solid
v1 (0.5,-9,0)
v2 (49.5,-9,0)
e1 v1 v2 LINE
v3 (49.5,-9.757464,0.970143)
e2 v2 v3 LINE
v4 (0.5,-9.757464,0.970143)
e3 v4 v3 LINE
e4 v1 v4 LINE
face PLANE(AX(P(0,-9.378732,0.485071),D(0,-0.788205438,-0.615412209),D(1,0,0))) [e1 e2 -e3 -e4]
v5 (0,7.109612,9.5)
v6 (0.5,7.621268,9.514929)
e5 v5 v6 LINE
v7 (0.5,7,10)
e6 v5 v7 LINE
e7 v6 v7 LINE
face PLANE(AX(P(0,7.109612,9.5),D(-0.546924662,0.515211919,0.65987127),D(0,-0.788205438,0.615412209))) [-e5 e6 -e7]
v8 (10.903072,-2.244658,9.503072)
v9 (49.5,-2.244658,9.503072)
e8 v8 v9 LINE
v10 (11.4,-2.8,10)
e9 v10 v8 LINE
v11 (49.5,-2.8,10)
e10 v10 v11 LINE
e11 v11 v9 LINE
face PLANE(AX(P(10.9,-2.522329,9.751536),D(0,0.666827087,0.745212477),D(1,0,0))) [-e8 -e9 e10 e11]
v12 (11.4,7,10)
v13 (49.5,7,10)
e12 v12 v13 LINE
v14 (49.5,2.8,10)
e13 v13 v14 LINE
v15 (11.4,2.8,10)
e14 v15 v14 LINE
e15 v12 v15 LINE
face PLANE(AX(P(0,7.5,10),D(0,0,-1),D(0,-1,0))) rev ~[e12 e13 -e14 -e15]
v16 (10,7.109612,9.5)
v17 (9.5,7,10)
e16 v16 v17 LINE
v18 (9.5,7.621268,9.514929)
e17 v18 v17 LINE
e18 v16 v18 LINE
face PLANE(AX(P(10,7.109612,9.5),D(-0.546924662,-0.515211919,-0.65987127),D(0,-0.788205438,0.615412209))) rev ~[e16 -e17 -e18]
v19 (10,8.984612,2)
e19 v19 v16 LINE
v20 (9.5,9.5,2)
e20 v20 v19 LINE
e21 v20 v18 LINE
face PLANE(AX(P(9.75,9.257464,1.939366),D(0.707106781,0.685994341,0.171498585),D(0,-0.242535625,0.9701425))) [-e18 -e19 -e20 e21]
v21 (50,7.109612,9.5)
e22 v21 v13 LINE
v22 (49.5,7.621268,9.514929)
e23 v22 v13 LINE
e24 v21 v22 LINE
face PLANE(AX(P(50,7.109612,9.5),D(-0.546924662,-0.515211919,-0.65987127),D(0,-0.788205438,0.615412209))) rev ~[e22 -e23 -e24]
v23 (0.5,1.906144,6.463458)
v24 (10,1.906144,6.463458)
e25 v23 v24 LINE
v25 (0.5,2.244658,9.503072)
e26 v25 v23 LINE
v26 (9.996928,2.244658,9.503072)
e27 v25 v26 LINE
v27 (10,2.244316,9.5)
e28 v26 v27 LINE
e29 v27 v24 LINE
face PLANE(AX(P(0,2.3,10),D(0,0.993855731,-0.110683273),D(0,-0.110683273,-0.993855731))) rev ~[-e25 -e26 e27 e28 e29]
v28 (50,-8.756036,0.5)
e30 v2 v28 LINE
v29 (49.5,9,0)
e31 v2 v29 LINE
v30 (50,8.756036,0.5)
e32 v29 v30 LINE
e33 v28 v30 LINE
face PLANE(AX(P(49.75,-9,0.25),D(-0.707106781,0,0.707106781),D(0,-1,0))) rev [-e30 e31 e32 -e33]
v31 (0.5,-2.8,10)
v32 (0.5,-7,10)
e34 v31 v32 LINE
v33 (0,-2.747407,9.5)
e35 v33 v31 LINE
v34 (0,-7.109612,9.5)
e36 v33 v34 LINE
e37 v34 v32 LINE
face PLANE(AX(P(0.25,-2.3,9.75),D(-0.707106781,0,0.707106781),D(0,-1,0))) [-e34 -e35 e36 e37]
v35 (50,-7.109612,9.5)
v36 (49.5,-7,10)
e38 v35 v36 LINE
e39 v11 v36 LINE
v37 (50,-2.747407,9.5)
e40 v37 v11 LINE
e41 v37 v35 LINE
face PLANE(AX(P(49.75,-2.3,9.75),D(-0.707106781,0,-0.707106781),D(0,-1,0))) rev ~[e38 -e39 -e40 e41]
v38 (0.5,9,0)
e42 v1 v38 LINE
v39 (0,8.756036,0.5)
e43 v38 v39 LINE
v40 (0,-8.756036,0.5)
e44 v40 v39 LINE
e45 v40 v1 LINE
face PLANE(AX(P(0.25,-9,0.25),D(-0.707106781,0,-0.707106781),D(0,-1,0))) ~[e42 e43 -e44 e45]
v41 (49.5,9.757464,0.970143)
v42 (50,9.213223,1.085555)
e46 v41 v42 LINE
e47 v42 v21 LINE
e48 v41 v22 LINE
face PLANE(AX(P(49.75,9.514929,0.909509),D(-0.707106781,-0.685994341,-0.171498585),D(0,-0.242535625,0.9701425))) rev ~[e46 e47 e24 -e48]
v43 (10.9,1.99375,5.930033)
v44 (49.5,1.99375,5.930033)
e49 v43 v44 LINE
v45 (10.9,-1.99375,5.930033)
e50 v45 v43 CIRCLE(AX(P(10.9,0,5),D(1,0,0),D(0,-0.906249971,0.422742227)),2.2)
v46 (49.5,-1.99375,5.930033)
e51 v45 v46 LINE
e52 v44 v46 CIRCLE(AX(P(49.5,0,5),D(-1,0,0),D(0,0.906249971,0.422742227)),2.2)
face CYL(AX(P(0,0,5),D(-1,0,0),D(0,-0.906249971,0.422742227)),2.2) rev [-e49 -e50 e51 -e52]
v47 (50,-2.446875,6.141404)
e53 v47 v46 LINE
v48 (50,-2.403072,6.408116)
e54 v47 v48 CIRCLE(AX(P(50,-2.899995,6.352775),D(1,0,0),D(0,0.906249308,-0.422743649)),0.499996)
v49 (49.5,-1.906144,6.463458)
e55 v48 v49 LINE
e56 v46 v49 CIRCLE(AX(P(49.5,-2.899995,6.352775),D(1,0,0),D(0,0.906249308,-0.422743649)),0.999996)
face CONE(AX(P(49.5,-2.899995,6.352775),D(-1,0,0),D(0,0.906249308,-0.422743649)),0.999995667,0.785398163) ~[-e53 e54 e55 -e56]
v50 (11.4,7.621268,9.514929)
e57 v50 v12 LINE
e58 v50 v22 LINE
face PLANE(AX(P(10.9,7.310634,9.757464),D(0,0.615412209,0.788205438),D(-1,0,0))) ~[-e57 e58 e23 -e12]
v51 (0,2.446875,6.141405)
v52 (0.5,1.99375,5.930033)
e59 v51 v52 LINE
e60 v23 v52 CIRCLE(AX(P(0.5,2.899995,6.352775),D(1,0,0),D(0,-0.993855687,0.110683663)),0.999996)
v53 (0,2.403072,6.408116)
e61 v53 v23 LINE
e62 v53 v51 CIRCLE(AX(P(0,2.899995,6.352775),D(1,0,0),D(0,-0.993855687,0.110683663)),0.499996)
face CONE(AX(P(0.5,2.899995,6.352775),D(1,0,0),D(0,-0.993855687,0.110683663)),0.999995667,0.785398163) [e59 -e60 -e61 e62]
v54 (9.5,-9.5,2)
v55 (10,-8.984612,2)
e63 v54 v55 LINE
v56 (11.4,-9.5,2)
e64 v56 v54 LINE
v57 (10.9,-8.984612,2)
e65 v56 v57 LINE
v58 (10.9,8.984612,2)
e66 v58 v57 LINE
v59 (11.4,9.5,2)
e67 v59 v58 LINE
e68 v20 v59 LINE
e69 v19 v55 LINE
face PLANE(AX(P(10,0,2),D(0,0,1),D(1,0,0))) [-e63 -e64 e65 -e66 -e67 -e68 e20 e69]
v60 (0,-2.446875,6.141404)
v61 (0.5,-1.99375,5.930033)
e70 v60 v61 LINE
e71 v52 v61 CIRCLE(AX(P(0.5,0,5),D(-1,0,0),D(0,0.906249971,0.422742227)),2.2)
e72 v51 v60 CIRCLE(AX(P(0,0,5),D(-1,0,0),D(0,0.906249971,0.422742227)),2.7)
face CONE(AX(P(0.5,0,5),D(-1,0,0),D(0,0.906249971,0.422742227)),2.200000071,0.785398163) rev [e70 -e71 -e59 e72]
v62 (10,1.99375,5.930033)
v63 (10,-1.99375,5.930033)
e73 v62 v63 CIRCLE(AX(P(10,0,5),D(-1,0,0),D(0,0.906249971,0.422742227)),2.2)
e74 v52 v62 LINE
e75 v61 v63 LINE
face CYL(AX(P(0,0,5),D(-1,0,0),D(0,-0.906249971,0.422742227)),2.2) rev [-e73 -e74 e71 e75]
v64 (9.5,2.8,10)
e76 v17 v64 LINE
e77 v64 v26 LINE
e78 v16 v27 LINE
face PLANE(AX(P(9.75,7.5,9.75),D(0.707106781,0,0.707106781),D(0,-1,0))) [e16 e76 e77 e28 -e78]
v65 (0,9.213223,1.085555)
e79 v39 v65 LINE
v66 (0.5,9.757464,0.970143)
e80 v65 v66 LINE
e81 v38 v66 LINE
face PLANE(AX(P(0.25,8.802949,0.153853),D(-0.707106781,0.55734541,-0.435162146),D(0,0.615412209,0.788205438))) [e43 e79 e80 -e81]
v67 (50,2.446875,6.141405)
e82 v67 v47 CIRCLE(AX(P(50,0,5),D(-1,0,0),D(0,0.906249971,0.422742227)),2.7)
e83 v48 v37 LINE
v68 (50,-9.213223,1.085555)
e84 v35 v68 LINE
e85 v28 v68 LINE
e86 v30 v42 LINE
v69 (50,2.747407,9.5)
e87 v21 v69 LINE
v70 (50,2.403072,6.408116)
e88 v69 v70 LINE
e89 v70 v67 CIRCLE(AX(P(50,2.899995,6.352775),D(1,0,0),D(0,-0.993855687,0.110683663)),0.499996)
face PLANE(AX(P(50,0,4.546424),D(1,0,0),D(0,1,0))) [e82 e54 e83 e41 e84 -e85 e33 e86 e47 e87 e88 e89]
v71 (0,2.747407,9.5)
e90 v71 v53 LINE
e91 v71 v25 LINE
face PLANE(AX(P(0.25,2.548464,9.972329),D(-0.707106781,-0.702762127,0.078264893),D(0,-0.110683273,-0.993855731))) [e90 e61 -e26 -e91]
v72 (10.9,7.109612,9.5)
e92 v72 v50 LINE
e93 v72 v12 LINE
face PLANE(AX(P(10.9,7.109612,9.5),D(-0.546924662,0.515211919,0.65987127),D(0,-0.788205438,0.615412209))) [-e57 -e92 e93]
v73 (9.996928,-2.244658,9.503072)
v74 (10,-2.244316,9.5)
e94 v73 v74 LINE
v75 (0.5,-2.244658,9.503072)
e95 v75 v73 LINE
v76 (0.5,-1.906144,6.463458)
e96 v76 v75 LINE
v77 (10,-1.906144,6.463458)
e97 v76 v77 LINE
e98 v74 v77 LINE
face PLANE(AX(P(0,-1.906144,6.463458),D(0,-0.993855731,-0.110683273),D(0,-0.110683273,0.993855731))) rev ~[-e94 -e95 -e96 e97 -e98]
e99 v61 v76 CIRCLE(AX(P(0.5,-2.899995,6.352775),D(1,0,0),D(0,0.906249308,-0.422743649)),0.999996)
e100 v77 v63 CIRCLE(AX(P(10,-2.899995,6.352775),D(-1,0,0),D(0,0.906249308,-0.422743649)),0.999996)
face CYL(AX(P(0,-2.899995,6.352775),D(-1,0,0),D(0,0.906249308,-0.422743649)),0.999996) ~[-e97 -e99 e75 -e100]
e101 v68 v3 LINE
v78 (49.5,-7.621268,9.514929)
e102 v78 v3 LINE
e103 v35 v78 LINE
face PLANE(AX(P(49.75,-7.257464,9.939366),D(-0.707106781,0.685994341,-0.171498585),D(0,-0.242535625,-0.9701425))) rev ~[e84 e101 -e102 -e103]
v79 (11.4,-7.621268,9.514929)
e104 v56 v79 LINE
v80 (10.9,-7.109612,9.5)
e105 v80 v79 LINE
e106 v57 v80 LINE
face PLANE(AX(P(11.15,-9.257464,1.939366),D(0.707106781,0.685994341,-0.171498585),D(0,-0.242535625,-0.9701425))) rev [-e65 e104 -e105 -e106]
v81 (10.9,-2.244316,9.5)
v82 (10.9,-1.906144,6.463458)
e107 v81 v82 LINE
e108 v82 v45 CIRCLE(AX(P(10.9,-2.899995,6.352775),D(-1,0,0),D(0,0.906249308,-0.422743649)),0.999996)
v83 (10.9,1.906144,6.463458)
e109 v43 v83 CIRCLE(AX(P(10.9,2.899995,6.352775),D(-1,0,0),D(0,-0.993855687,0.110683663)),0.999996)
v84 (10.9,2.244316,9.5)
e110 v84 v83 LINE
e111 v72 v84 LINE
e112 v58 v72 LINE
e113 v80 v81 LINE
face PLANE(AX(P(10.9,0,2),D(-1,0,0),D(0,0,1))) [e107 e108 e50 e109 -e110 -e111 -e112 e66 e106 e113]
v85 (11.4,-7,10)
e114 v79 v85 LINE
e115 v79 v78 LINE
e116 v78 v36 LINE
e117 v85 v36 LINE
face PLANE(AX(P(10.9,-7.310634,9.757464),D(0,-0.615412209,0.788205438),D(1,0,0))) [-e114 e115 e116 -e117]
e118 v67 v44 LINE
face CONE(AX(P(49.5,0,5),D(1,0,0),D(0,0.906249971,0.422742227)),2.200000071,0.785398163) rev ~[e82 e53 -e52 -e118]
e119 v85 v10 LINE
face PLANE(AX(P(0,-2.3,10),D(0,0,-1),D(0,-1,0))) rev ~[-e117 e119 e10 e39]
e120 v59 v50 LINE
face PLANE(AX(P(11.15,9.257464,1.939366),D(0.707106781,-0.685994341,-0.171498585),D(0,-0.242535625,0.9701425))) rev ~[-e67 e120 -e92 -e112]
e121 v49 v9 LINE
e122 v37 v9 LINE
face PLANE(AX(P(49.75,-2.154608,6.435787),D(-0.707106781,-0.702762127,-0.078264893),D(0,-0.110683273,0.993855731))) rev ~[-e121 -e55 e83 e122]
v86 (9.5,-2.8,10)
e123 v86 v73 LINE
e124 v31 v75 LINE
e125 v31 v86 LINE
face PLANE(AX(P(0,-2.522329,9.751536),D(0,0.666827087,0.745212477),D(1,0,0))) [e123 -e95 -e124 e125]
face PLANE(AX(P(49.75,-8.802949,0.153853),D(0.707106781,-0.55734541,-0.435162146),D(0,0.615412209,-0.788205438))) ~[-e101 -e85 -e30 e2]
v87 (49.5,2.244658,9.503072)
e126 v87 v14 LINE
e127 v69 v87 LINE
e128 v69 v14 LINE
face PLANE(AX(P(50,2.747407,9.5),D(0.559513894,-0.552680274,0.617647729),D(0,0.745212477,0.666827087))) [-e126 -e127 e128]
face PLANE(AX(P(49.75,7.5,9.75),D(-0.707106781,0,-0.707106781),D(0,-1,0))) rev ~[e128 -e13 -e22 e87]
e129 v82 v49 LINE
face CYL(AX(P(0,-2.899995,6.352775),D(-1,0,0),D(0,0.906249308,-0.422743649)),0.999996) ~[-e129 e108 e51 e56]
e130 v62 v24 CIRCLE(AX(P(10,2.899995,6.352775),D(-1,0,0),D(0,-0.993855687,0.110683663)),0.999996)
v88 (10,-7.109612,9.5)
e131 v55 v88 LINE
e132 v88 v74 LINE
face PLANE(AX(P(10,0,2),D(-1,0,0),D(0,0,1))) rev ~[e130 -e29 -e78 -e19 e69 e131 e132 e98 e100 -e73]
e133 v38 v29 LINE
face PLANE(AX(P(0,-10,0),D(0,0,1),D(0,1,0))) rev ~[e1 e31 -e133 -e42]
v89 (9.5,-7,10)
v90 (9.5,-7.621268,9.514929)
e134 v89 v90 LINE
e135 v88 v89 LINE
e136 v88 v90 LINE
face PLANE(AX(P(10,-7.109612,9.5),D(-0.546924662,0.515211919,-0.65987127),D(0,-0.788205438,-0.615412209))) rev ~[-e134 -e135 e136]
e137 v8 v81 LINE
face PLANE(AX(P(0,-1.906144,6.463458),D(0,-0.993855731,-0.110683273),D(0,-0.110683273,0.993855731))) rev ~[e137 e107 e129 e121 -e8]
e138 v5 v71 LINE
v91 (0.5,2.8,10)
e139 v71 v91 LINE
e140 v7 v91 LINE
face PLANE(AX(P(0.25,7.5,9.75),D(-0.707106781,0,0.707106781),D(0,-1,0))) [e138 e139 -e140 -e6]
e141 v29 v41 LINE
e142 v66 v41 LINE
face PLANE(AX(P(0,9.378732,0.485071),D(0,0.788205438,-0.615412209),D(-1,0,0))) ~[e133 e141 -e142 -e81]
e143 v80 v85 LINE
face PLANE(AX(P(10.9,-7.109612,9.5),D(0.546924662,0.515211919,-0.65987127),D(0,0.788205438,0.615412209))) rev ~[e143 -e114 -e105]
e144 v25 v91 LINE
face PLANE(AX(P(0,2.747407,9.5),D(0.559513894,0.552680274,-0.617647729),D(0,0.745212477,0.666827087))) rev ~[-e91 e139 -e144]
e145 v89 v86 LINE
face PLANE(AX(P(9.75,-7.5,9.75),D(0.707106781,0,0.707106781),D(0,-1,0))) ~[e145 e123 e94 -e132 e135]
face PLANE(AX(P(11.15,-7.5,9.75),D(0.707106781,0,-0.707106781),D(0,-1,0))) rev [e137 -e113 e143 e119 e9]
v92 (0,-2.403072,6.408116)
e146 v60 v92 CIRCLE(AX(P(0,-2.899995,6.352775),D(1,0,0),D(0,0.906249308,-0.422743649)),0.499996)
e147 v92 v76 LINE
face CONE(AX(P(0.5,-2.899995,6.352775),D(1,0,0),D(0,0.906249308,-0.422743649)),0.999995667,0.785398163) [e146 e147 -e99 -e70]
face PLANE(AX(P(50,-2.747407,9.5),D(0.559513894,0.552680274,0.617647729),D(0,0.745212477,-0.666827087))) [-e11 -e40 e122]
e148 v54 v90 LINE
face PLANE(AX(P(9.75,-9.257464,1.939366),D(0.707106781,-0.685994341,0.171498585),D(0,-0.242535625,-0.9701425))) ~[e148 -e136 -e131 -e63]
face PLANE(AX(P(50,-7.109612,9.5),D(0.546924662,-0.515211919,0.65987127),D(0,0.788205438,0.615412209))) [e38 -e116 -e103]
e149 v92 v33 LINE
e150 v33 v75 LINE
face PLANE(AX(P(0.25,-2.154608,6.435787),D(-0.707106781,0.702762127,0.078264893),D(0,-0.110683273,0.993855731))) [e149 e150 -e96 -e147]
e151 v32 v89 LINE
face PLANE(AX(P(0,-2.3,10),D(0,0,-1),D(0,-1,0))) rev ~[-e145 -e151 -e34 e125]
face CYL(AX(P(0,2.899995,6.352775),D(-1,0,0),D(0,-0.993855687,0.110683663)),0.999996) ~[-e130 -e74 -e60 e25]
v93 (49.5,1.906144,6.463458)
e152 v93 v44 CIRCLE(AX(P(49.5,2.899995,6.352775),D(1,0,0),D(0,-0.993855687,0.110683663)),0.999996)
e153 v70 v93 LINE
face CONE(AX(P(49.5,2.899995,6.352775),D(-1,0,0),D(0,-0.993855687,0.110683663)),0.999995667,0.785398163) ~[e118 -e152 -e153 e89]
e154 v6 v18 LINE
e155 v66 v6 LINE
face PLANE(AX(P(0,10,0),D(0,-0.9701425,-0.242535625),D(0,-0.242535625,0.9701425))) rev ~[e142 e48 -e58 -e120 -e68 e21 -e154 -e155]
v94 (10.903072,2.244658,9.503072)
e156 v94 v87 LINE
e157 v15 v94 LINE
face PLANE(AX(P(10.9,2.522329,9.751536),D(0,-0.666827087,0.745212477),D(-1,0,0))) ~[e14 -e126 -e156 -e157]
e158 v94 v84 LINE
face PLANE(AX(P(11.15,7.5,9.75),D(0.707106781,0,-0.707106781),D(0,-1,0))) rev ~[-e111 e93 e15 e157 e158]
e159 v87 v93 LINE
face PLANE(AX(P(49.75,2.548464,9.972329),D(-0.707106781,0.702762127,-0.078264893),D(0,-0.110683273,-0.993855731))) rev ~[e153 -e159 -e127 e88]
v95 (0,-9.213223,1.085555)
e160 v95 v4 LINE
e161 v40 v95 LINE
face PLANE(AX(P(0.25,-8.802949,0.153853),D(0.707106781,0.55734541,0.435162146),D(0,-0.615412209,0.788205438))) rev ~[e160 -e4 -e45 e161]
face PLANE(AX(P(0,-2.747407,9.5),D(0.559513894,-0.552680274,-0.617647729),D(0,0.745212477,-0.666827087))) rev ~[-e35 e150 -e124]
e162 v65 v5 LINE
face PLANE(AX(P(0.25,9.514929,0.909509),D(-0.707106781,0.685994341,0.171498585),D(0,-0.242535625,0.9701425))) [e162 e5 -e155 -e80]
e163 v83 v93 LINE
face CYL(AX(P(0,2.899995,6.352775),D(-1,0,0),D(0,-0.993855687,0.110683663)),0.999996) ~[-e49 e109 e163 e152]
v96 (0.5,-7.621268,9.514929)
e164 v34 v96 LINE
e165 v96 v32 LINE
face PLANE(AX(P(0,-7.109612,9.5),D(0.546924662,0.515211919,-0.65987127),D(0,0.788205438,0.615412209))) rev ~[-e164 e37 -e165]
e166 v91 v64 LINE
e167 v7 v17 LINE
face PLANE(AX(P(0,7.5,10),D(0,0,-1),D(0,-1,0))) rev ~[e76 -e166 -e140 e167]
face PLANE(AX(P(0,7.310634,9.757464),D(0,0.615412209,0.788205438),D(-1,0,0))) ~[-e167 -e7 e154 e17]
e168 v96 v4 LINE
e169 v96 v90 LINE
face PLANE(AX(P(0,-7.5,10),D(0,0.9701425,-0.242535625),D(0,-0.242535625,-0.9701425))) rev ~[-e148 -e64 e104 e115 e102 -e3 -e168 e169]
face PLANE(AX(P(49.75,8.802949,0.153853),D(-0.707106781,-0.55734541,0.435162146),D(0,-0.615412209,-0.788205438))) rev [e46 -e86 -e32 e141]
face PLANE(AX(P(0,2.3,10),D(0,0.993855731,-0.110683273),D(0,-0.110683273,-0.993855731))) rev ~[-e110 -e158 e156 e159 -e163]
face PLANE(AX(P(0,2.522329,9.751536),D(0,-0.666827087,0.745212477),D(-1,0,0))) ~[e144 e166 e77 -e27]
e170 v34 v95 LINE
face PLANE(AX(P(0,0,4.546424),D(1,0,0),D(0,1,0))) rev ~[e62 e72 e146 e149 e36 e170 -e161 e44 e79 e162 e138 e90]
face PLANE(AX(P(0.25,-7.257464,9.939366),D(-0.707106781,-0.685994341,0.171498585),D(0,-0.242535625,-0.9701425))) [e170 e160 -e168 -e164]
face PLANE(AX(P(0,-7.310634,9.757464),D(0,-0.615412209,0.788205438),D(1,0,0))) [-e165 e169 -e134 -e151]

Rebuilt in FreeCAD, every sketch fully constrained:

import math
import FreeCAD as App
import Part
import Sketcher
from FreeCAD import Vector
Q = App.Units.Quantity


def edges_at(feature, points):
    """Names of the edges that pass closest to the given points."""
    edges = feature.Shape.Edges
    near = lambda p: min(range(len(edges)), key=lambda i: edges[i].distToShape(Part.Vertex(*p))[0])
    return sorted({f"Edge{near(p) + 1}" for p in points})


def add_polygon(sketch, points):
    """Adds a closed chain of lines whose ends are joined by coincident constraints."""
    first, n = sketch.GeometryCount, len(points)
    for a, b in zip(points, points[1:] + points[:1]):
        sketch.addGeometry(Part.LineSegment(App.Vector(*a, 0), App.Vector(*b, 0)), False)
    for i in range(n):
        sketch.addConstraint(Sketcher.Constraint("Coincident", first + i, 2, first + (i + 1) % n, 1))

doc = App.newDocument("Part")
body = doc.addObject("PartDesign::Body", "Body")

sketch1 = doc.addObject("Sketcher::SketchObject", "Sketch")
body.addObject(sketch1)
sketch1.AttachmentSupport = (doc.YZ_Plane, [""])
sketch1.MapMode = "FlatFace"
sketch1.addGeometry(Part.LineSegment(Vector(-10, 0, 0), Vector(10, 0, 0)), False)
sketch1.addGeometry(Part.LineSegment(Vector(10, 0, 0), Vector(7.5, 10, 0)), False)
sketch1.addGeometry(Part.LineSegment(Vector(7.5, 10, 0), Vector(2.3, 10, 0)), False)
sketch1.addGeometry(Part.LineSegment(Vector(2.3, 10, 0), Vector(1.9, 6.5, 0)), False)
sketch1.addGeometry(Part.ArcOfCircle(Part.Circle(Vector(2.9, 6.4, 0), Vector(0, 0, 1), 1), math.radians(174), math.radians(205)), False)
sketch1.addGeometry(Part.ArcOfCircle(Part.Circle(Vector(0, 5, 0), Vector(0, 0, 1), 2.2), math.radians(155), math.radians(385)), False)
sketch1.addGeometry(Part.ArcOfCircle(Part.Circle(Vector(-2.9, 6.4, 0), Vector(0, 0, 1), 1), math.radians(-25), math.radians(6)), False)
sketch1.addGeometry(Part.LineSegment(Vector(-1.9, 6.5, 0), Vector(-2.3, 10, 0)), False)
sketch1.addGeometry(Part.LineSegment(Vector(-2.3, 10, 0), Vector(-7.5, 10, 0)), False)
sketch1.addGeometry(Part.LineSegment(Vector(-7.5, 10, 0), Vector(-10, 0, 0)), False)
sketch1.addConstraint(Sketcher.Constraint("Coincident", 0, 2, 1, 1))
sketch1.addConstraint(Sketcher.Constraint("Coincident", 1, 2, 2, 1))
sketch1.addConstraint(Sketcher.Constraint("Coincident", 2, 2, 3, 1))
sketch1.addConstraint(Sketcher.Constraint("Tangent", 3, 2, 4, 1))
sketch1.addConstraint(Sketcher.Constraint("Tangent", 4, 2, 5, 2))
sketch1.addConstraint(Sketcher.Constraint("Tangent", 5, 1, 6, 1))
sketch1.addConstraint(Sketcher.Constraint("Tangent", 6, 2, 7, 1))
sketch1.addConstraint(Sketcher.Constraint("Coincident", 7, 2, 8, 1))
sketch1.addConstraint(Sketcher.Constraint("Coincident", 8, 2, 9, 1))
sketch1.addConstraint(Sketcher.Constraint("Coincident", 9, 2, 0, 1))
sketch1.addConstraint(Sketcher.Constraint("Horizontal", 0))
sketch1.addConstraint(Sketcher.Constraint("Horizontal", 2))
sketch1.addConstraint(Sketcher.Constraint("Horizontal", 8))
sketch1.addConstraint(Sketcher.Constraint("Equal", 4, 6))
sketch1.addConstraint(Sketcher.Constraint("Symmetric", 0, 2, 9, 2, -1, 1))
sketch1.addConstraint(Sketcher.Constraint("Symmetric", 4, 3, 6, 3, -2))
sketch1.addConstraint(Sketcher.Constraint("Symmetric", 2, 2, 7, 2, -2))
sketch1.addConstraint(Sketcher.Constraint("Equal", 2, 8))
sketch1.addConstraint(Sketcher.Constraint("Radius", 5, Q("2.2 mm")))
sketch1.addConstraint(Sketcher.Constraint("DistanceX", 0, 1, 0, 2, Q("20 mm")))
sketch1.addConstraint(Sketcher.Constraint("DistanceX", 2, 2, 2, 1, Q("5.2 mm")))
sketch1.addConstraint(Sketcher.Constraint("DistanceY", -1, 1, 5, 3, Q("5 mm")))
sketch1.addConstraint(Sketcher.Constraint("DistanceY", -1, 1, 1, 2, Q("10 mm")))
sketch1.addConstraint(Sketcher.Constraint("DistanceX", -1, 1, 1, 2, Q("7.5 mm")))
sketch1.addConstraint(Sketcher.Constraint("Radius", 4, Q("0.999996 mm")))
sketch1.addConstraint(Sketcher.Constraint("DistanceX", 5, 1, 4, 2, Q("3.9875 mm")))
pad1 = doc.addObject("PartDesign::Pad", "Pad")
body.addObject(pad1)
pad1.Profile = sketch1
pad1.Length = 50

sketch2 = doc.addObject("Sketcher::SketchObject", "Sketch001")
body.addObject(sketch2)
sketch2.AttachmentSupport = (doc.XZ_Plane, [""])
sketch2.MapMode = "FlatFace"
add_polygon(sketch2, [(10, 12), (10, 2), (10.9, 2), (10.9, 12)])
sketch2.addConstraint(Sketcher.Constraint("Vertical", 0))
sketch2.addConstraint(Sketcher.Constraint("Horizontal", 1))
sketch2.addConstraint(Sketcher.Constraint("Vertical", 2))
sketch2.addConstraint(Sketcher.Constraint("Horizontal", 3))
sketch2.addConstraint(Sketcher.Constraint("DistanceY", 0, 2, 0, 1, Q("10 mm")))
sketch2.addConstraint(Sketcher.Constraint("DistanceX", 1, 1, 1, 2, Q("0.9 mm")))
sketch2.addConstraint(Sketcher.Constraint("DistanceX", -1, 1, 0, 2, Q("10 mm")))
sketch2.addConstraint(Sketcher.Constraint("DistanceY", -1, 1, 0, 2, Q("2 mm")))
pocket1 = doc.addObject("PartDesign::Pocket", "Pocket")
body.addObject(pocket1)
pocket1.Profile = sketch2
pocket1.Type = "ThroughAll"
pocket1.Midplane = True
doc.recompute()

chamfer = doc.addObject("PartDesign::Chamfer", "Chamfer")
body.addObject(chamfer)
chamfer.Base = (pocket1, edges_at(pocket1, [(25, 10, 0), (25, -10, 0)]))
chamfer.Size = 1
doc.recompute()

chamfer2 = doc.addObject("PartDesign::Chamfer", "Chamfer001")
body.addObject(chamfer2)
chamfer2.Base = (chamfer, edges_at(chamfer, [
    (50, -8.629, 5.485),
    (50, -9.379, 0.485),
    (50, -4.9, 10),
    (50, 0, 0),
    (50, -2.103, 8.232),
    (50, 9.379, 0.485),
    (50, -1.913, 6.191),
    (50, 8.629, 5.485),
    (50, 0, 2.8),
    (50, 4.9, 10),
    (50, 1.913, 6.191),
    (50, 2.103, 8.232),
    (0, -8.629, 5.485),
    (0, -9.379, 0.485),
    (0, -4.9, 10),
    (0, 0, 0),
    (0, -2.103, 8.232),
    (0, 9.379, 0.485),
    (0, -1.913, 6.191),
    (0, 8.629, 5.485),
    (0, 0, 2.8),
    (0, 4.9, 10),
    (0, 1.913, 6.191),
    (0, 2.103, 8.232),
    (5, -7.5, 10),
    (10, -4.9, 10),
    (5, -2.3, 10),
    (5, 2.3, 10),
    (10, 4.9, 10),
    (5, 7.5, 10),
    (10.9, 4.9, 10),
    (30.45, 2.3, 10),
    (30.45, 7.5, 10),
    (10.9, -4.9, 10),
    (30.45, -7.5, 10),
    (30.45, -2.3, 10),
    (10, -8.5, 6),
    (10, 8.5, 6),
    (10.9, 8.5, 6),
    (10.9, -8.5, 6),
]))
chamfer2.Size = 0.5

doc.recompute()
